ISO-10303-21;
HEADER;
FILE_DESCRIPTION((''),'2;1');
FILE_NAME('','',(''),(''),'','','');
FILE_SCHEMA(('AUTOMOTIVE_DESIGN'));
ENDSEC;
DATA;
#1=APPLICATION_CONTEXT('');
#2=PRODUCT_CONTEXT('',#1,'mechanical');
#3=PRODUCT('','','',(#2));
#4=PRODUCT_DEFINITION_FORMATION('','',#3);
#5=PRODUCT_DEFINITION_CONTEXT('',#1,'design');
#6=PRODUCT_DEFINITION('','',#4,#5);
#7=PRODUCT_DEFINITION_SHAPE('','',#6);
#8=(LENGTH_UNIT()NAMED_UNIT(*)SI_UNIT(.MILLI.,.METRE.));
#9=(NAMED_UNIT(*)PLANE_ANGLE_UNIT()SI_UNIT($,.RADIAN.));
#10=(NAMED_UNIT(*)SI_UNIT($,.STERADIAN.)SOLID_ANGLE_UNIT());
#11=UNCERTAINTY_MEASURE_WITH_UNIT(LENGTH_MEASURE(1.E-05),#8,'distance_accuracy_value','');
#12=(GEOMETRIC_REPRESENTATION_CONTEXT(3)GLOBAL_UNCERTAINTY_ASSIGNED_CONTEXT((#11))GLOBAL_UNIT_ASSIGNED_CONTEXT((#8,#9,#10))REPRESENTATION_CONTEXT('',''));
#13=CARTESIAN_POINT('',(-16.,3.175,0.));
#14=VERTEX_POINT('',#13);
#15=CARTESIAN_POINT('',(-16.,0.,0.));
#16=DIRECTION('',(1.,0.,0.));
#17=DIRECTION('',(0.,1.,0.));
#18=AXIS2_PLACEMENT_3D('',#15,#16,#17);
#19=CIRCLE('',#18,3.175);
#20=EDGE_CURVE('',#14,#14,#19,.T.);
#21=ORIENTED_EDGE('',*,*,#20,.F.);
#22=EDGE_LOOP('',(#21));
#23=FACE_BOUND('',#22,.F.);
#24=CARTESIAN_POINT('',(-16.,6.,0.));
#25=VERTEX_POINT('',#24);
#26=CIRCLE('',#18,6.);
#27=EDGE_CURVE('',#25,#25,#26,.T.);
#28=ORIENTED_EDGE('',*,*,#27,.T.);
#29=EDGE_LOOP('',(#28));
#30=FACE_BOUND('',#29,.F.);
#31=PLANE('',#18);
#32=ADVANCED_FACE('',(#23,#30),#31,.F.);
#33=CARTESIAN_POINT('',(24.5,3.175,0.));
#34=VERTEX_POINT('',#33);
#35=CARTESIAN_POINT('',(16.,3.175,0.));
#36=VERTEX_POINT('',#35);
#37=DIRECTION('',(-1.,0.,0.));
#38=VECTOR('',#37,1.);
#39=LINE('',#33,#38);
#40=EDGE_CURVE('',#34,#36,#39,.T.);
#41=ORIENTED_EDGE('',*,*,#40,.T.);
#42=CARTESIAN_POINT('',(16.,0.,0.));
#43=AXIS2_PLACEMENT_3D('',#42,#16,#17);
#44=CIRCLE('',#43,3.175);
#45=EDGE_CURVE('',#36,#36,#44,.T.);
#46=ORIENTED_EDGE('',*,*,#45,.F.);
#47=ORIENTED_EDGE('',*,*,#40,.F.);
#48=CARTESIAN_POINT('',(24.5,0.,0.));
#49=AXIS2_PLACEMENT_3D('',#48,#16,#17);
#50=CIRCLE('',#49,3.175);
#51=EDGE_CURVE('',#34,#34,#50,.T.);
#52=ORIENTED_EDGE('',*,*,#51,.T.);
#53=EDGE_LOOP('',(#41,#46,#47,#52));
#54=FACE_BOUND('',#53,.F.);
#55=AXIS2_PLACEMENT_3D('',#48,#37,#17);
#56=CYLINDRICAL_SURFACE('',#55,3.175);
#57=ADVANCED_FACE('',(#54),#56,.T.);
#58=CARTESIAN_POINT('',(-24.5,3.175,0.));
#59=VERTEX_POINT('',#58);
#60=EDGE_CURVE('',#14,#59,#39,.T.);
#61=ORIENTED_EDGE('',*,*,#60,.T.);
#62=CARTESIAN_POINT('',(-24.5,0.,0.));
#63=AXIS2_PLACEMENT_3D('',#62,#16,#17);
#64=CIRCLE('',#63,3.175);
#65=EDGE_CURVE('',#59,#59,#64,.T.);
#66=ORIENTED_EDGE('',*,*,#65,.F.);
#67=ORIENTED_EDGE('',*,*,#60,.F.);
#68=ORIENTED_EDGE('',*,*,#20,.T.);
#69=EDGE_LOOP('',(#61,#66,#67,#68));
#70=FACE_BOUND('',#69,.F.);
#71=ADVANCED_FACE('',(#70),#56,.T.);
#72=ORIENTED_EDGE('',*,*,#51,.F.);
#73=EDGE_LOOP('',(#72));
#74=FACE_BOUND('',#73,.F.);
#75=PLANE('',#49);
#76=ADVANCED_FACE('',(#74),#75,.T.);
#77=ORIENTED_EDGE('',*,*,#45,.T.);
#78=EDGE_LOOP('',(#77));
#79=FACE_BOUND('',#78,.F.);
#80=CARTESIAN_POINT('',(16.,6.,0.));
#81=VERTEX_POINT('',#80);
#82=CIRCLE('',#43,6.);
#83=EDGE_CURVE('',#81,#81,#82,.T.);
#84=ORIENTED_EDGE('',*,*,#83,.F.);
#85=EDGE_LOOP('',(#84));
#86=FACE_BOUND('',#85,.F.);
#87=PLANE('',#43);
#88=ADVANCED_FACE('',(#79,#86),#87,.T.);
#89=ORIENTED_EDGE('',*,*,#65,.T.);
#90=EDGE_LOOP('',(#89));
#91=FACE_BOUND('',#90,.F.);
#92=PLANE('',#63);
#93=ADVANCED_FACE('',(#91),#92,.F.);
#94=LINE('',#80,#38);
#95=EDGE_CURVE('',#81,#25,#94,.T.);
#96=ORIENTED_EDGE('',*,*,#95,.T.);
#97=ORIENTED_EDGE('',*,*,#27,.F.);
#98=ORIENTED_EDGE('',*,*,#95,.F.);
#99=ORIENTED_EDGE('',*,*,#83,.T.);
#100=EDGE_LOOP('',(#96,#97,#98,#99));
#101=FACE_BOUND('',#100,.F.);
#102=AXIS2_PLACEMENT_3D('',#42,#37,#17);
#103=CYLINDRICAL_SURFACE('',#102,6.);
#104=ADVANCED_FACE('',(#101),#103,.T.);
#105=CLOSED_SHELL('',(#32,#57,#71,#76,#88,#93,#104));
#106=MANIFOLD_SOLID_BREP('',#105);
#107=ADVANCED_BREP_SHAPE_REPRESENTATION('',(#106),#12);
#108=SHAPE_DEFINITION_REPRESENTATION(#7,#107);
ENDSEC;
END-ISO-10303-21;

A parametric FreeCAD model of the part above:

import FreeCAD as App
import Part
import Sketcher
from FreeCAD import Vector


def add_polygon(sketch, points):
    """Adds a closed chain of lines whose ends are joined by coincident constraints."""
    first, n = sketch.GeometryCount, len(points)
    for a, b in zip(points, points[1:] + points[:1]):
        sketch.addGeometry(Part.LineSegment(App.Vector(*a, 0), App.Vector(*b, 0)), False)
    for i in range(n):
        sketch.addConstraint(Sketcher.Constraint("Coincident", first + i, 2, first + (i + 1) % n, 1))

doc = App.newDocument("Part")
body = doc.addObject("PartDesign::Body", "Body")

# Sketch on XY plane
sketch1 = doc.addObject("Sketcher::SketchObject", "Sketch")
body.addObject(sketch1)
sketch1.AttachmentSupport = (doc.XY_Plane, [""])
sketch1.MapMode = "FlatFace"
add_polygon(sketch1, [(-24.5, 3.175), (-24.5, 0), (24.5, 0), (24.5, 3.175), (16, 3.175), (16, 6), (-16, 6), (-16, 3.175)])  # lines 0-7
sketch1.addConstraint([
    Sketcher.Constraint("Vertical", 0),
    Sketcher.Constraint("Horizontal", 1),
    Sketcher.Constraint("Vertical", 2),
    Sketcher.Constraint("Horizontal", 3),
    Sketcher.Constraint("Vertical", 4),
    Sketcher.Constraint("Horizontal", 5),
    Sketcher.Constraint("Vertical", 6),
    Sketcher.Constraint("Horizontal", 7),
    Sketcher.Constraint("Symmetric", 0, 2, 1, 2, -1, 1),
    Sketcher.Constraint("Symmetric", 3, 2, 6, 2, -2),
    Sketcher.Constraint("DistanceX", 1, 1, 1, 2, 49.0),
    Sketcher.Constraint("DistanceX", 5, 2, 5, 1, 32.0),
    Sketcher.Constraint("DistanceY", -1, 1, 4, 2, 6.0),
    Sketcher.Constraint("DistanceY", 0, 2, 0, 1, 3.175),
])
revolution = doc.addObject("PartDesign::Revolution", "Revolution")
body.addObject(revolution)
revolution.Profile = sketch1
revolution.ReferenceAxis = (sketch1, ["H_Axis"])
revolution.Angle = 360

doc.recompute()
